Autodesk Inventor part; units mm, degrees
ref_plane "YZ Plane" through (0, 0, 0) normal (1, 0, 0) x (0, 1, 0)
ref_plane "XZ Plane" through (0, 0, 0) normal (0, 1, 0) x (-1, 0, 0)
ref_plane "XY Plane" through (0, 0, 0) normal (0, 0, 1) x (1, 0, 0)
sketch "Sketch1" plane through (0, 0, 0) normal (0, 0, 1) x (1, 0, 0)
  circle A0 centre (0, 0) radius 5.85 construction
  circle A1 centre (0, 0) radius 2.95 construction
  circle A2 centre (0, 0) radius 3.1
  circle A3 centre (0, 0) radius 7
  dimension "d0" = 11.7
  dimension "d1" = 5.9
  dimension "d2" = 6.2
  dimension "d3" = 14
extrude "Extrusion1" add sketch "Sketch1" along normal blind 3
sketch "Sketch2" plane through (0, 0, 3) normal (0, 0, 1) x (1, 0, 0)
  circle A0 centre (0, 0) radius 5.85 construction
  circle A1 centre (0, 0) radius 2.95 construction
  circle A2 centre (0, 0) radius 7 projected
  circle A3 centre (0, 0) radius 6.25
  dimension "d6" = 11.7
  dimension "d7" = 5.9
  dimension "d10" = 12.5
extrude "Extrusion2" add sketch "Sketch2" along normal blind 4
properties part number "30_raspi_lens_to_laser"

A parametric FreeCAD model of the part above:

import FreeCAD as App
import Part
import Sketcher

doc = App.newDocument("Part")
body = doc.addObject("PartDesign::Body", "Body")

# Sketch on XY plane
sketch1 = doc.addObject("Sketcher::SketchObject", "Sketch")
body.addObject(sketch1)
sketch1.AttachmentSupport = (doc.XY_Plane, [""])
sketch1.MapMode = "FlatFace"
sketch1.addGeometry(Part.Circle(App.Vector(0, 0, 0), App.Vector(0, 0, 1), 7), False)
sketch1.addGeometry(Part.Circle(App.Vector(0, 0, 0), App.Vector(0, 0, 1), 3.1), False)
sketch1.addConstraint(Sketcher.Constraint("Coincident", 0, 3, -1, 1))
sketch1.addConstraint(Sketcher.Constraint("Coincident", 1, 3, -1, 1))
sketch1.addConstraint(Sketcher.Constraint("Diameter", 0, 14.0))
sketch1.addConstraint(Sketcher.Constraint("Diameter", 1, 6.2))
pad1 = doc.addObject("PartDesign::Pad", "Pad")
body.addObject(pad1)
pad1.Profile = sketch1
pad1.Length = 3

# Sketch on XY plane
sketch2 = doc.addObject("Sketcher::SketchObject", "Sketch001")
body.addObject(sketch2)
sketch2.AttachmentSupport = (doc.XY_Plane, [""])
sketch2.MapMode = "FlatFace"
sketch2.AttachmentOffset = App.Placement(App.Vector(0, 0, 3), App.Rotation())
sketch2.addGeometry(Part.Circle(App.Vector(0, 0, 0), App.Vector(0, 0, 1), 7), False)
sketch2.addGeometry(Part.Circle(App.Vector(0, 0, 0), App.Vector(0, 0, 1), 6), False)
sketch2.addConstraint(Sketcher.Constraint("Coincident", 0, 3, -1, 1))
sketch2.addConstraint(Sketcher.Constraint("Coincident", 1, 3, -1, 1))
sketch2.addConstraint(Sketcher.Constraint("Diameter", 1, 12.5))
sketch2.addConstraint(Sketcher.Constraint("Diameter", 0, 14.0))
pad2 = doc.addObject("PartDesign::Pad", "Pad001")
body.addObject(pad2)
pad2.Profile = sketch2
pad2.Length = 4

doc.recompute()
